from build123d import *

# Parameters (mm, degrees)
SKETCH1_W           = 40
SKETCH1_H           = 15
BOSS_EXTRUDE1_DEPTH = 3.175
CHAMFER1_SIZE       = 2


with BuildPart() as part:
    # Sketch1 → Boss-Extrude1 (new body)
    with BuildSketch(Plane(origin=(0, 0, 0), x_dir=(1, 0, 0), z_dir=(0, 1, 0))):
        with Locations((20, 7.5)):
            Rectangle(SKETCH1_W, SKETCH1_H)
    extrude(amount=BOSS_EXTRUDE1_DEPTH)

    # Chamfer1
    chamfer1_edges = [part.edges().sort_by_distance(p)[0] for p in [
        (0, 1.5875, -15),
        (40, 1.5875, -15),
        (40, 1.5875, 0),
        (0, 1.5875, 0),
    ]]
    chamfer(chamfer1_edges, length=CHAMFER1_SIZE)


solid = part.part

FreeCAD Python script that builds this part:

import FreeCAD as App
import Part
import Sketcher

V = App.Vector
Q = App.Units.Quantity


def edges_at(feature, points):
    """Names of the edges that pass closest to the given points."""
    edges = feature.Shape.Edges
    near = lambda p: min(range(len(edges)), key=lambda i: edges[i].distToShape(Part.Vertex(*p))[0])
    return sorted({f"Edge{near(p) + 1}" for p in points})


def add_polygon(sketch, points):
    """Adds a closed chain of lines whose ends are joined by coincident constraints."""
    first, n = sketch.GeometryCount, len(points)
    for a, b in zip(points, points[1:] + points[:1]):
        sketch.addGeometry(Part.LineSegment(App.Vector(*a, 0), App.Vector(*b, 0)), False)
    for i in range(n):
        sketch.addConstraint(Sketcher.Constraint("Coincident", first + i, 2, first + (i + 1) % n, 1))

doc = App.newDocument("Part")
body = doc.addObject("PartDesign::Body", "Body")

# Sketch on XZ plane
sketch1 = body.newObject("Sketcher::SketchObject", "Sketch")
sketch1.AttachmentSupport = (doc.getObject("XZ_Plane"), [""])
sketch1.MapMode = "FlatFace"
add_polygon(sketch1, [(0, -15), (0, 0), (40, 0), (40, -15)])  # lines 0-3
sketch1.addConstraint([
    Sketcher.Constraint("Vertical", 0),
    Sketcher.Constraint("Horizontal", 1),
    Sketcher.Constraint("Vertical", 2),
    Sketcher.Constraint("Horizontal", 3),
    Sketcher.Constraint("Coincident", 0, 2, -1, 1),
    Sketcher.Constraint("DistanceX", 1, 1, 1, 2, Q("40 mm")),
    Sketcher.Constraint("DistanceY", 0, 1, 0, 2, Q("15 mm")),
])
pad1 = body.newObject("PartDesign::Pad", "Pad")
pad1.Profile = sketch1
pad1.Length = 3.175
pad1.Reversed = True
doc.recompute()

chamfer = body.newObject("PartDesign::Chamfer", "Chamfer")
chamfer.Base = (pad1, edges_at(pad1, [
    (0, 1.587, -15),
    (40, 1.587, -15),
    (40, 1.587, 0),
    (0, 1.587, 0),
]))
chamfer.Size = 2

doc.recompute()
